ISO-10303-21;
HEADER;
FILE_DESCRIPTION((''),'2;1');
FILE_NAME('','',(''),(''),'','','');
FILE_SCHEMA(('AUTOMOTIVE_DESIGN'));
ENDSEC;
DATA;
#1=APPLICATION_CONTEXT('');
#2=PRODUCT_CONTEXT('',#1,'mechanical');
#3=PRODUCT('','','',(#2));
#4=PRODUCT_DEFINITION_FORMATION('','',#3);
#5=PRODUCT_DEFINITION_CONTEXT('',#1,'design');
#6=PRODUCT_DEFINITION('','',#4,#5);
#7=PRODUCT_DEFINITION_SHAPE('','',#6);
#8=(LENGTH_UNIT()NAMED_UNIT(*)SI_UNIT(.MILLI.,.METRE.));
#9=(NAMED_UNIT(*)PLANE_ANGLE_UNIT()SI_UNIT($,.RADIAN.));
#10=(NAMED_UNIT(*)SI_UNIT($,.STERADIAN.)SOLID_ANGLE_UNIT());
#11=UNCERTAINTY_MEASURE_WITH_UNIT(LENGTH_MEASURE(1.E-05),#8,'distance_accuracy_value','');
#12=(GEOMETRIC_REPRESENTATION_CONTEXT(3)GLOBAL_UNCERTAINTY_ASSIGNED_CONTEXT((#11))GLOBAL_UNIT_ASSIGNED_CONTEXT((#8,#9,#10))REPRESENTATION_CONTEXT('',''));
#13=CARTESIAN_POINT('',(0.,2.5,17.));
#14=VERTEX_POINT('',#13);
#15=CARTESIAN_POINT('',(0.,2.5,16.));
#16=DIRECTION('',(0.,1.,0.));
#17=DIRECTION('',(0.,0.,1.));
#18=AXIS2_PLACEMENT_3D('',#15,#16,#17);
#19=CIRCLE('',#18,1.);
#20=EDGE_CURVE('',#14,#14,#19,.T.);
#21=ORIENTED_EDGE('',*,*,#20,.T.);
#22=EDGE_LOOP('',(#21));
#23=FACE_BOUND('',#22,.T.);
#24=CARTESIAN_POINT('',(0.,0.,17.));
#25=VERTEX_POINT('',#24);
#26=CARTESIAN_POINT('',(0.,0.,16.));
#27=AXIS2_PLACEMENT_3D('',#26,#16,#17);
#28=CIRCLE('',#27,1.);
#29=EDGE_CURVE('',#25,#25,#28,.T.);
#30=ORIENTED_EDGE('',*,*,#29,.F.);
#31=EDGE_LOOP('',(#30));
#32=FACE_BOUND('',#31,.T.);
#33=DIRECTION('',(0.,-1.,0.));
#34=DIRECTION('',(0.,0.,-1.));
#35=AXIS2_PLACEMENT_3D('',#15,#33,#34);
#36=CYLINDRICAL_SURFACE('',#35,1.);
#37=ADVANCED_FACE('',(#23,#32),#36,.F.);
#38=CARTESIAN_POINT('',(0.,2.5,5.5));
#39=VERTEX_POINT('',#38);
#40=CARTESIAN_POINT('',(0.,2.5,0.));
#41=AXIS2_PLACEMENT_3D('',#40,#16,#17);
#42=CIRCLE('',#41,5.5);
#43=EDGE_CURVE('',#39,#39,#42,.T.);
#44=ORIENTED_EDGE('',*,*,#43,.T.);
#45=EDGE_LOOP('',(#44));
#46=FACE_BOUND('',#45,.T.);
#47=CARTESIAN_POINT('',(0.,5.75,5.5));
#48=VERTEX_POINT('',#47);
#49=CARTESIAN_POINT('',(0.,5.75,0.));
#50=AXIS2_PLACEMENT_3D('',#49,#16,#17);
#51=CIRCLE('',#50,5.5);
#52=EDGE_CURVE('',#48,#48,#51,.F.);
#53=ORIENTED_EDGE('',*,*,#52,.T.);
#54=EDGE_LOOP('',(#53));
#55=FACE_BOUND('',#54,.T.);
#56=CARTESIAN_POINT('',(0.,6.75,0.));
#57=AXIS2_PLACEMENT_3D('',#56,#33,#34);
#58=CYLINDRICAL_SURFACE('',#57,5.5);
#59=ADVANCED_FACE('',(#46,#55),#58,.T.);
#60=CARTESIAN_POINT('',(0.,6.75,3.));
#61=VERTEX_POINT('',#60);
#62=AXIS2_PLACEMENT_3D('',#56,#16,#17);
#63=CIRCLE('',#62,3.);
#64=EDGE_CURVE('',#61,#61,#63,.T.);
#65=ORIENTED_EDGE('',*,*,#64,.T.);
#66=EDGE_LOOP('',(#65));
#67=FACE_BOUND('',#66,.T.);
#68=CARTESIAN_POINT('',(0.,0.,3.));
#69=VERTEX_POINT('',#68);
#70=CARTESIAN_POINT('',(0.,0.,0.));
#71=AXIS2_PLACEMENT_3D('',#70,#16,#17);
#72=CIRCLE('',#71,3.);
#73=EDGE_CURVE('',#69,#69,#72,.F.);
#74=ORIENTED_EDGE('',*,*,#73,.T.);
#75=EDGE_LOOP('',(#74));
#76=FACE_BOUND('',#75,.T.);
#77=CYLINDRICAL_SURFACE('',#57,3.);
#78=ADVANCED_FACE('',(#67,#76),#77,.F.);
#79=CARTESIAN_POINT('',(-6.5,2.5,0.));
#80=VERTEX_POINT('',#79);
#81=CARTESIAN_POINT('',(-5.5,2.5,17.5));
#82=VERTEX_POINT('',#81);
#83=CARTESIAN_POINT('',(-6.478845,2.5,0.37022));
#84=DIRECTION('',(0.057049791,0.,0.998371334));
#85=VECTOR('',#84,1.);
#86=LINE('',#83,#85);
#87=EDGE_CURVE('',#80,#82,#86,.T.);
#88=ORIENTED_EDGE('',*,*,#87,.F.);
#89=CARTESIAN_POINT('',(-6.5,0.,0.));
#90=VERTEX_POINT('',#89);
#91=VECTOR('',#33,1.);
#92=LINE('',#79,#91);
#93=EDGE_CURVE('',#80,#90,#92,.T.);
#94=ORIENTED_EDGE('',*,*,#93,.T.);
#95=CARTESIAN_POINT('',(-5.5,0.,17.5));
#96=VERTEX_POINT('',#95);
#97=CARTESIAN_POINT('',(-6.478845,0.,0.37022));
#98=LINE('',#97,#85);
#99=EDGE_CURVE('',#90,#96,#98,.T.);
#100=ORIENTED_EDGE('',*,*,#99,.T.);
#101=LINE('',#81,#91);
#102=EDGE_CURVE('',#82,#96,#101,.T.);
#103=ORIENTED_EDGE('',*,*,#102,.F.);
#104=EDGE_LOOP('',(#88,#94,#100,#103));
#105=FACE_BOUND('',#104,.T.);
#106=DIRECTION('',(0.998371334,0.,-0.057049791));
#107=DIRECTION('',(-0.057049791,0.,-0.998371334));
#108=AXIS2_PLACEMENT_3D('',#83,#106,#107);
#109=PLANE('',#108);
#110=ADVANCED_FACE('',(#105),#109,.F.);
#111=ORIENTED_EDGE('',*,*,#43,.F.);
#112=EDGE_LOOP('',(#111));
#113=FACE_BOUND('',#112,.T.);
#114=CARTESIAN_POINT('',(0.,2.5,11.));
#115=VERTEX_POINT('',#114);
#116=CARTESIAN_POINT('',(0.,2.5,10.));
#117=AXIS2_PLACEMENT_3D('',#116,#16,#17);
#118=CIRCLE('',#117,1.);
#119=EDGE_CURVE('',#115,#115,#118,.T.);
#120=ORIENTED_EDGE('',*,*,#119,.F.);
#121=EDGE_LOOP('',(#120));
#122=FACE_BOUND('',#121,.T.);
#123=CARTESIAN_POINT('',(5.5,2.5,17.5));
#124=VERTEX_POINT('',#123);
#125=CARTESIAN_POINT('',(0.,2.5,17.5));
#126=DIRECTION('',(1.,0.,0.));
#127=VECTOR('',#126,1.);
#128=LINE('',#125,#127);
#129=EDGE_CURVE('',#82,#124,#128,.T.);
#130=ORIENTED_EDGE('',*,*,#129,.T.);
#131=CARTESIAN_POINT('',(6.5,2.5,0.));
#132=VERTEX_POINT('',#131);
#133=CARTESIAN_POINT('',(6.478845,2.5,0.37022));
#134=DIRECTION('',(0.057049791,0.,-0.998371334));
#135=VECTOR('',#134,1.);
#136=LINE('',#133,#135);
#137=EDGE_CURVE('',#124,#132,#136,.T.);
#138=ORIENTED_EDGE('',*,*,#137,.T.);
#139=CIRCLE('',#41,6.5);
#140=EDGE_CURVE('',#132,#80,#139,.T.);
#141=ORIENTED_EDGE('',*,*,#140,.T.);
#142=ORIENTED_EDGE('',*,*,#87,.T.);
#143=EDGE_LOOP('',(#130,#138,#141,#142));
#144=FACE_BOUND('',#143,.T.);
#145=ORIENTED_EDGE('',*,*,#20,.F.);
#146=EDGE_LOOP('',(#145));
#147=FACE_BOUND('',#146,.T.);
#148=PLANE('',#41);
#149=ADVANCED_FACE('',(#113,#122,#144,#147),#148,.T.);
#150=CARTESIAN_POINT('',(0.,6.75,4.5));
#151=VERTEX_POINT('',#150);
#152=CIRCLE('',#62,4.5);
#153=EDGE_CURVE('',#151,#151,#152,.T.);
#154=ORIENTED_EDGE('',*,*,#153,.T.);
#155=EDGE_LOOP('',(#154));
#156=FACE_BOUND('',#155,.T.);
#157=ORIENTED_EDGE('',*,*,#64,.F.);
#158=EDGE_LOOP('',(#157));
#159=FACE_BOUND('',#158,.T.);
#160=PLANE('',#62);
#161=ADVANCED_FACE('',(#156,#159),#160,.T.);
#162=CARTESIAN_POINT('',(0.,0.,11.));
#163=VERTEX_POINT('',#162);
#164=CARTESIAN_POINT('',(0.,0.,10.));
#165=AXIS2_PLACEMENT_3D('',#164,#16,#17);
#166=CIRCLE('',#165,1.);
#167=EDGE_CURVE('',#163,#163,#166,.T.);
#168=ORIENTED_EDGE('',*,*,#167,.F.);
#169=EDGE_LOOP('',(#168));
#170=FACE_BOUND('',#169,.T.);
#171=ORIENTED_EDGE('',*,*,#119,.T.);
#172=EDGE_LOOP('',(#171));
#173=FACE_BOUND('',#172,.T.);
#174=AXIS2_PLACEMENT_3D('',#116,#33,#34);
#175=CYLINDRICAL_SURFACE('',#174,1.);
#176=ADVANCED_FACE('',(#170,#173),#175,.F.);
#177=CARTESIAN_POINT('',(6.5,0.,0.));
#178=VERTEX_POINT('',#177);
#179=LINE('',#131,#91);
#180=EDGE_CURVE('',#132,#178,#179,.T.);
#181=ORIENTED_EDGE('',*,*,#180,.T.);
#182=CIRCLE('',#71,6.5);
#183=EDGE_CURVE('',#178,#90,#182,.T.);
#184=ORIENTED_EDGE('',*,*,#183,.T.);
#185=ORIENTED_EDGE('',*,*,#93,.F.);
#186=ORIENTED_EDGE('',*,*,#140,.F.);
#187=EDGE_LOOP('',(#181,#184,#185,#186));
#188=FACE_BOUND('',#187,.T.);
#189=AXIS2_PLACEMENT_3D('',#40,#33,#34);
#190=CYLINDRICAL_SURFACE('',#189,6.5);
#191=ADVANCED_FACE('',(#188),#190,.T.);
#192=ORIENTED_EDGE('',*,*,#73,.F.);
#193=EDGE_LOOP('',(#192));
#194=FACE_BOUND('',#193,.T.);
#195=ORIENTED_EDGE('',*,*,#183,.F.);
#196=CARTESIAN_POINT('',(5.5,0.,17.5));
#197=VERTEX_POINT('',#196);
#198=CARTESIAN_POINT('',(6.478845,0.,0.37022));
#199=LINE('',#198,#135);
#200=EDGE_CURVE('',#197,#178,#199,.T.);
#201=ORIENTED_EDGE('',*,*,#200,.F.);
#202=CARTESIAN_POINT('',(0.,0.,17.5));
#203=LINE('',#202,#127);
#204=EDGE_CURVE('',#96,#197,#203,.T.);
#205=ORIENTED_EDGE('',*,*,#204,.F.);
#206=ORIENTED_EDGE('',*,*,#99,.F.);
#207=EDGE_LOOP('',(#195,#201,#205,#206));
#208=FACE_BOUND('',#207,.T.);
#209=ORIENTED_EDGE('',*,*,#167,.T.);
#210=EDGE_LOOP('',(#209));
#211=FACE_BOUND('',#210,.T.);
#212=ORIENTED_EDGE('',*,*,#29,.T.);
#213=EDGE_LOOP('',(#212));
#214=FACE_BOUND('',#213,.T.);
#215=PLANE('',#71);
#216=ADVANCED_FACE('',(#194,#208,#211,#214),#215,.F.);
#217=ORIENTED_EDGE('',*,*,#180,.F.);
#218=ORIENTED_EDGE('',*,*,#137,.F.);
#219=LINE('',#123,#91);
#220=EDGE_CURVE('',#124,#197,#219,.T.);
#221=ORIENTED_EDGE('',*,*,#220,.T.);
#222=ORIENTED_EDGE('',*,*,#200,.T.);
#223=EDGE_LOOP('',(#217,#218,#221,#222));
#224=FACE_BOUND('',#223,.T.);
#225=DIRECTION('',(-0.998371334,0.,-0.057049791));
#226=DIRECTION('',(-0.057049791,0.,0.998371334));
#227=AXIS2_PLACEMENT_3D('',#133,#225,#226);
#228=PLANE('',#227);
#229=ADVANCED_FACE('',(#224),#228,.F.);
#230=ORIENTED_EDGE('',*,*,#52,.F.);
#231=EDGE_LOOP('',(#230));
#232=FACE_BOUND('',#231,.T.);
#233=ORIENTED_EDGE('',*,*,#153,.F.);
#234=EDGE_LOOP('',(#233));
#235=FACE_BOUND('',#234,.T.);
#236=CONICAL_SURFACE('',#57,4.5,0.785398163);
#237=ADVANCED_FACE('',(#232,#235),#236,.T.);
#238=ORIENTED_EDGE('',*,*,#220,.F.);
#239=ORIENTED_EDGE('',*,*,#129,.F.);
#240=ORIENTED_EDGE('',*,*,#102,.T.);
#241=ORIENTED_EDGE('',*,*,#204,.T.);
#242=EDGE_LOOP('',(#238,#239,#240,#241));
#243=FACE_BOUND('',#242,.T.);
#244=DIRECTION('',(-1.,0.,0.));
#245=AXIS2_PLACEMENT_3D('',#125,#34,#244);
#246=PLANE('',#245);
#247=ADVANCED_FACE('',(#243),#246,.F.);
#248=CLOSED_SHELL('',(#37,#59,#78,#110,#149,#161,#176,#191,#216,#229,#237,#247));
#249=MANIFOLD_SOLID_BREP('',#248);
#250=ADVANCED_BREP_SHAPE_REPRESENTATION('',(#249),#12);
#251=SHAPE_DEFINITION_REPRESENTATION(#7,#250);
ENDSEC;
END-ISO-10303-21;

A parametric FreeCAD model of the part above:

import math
import FreeCAD as App
import Part
import Sketcher
from FreeCAD import Vector
Q = App.Units.Quantity


def edges_at(feature, points):
    """Names of the edges that pass closest to the given points."""
    edges = feature.Shape.Edges
    near = lambda p: min(range(len(edges)), key=lambda i: edges[i].distToShape(Part.Vertex(*p))[0])
    return sorted({f"Edge{near(p) + 1}" for p in points})

doc = App.newDocument("Part")
body = doc.addObject("PartDesign::Body", "Body")

# Sketch on XZ plane
sketch1 = doc.addObject("Sketcher::SketchObject", "Sketch")
body.addObject(sketch1)
sketch1.AttachmentSupport = (doc.XZ_Plane, [""])
sketch1.MapMode = "FlatFace"
sketch1.addGeometry(Part.ArcOfCircle(Part.Circle(Vector(0, 0, 0), Vector(0, 0, 1), 6.5), math.radians(180), math.radians(360)), False)
sketch1.addGeometry(Part.LineSegment(Vector(-6.5, 0, 0), Vector(-6.457689, 0.740439, 0)), False)
sketch1.addGeometry(Part.LineSegment(Vector(-6.457689, 0.740439, 0), Vector(-5.5, 17.5, 0)), False)
sketch1.addGeometry(Part.LineSegment(Vector(-5.5, 17.5, 0), Vector(5.5, 17.5, 0)), False)
sketch1.addGeometry(Part.LineSegment(Vector(5.5, 17.5, 0), Vector(6.457689, 0.740439, 0)), False)
sketch1.addGeometry(Part.LineSegment(Vector(6.457689, 0.740439, 0), Vector(6.5, 0, 0)), False)
sketch1.addGeometry(Part.Circle(Vector(0, 16, 0), Vector(0, 0, 1), 1), False)
sketch1.addGeometry(Part.Circle(Vector(0, 10, 0), Vector(0, 0, 1), 1), False)
sketch1.addConstraint(Sketcher.Constraint("Coincident", 0, 1, 1, 1))
sketch1.addConstraint(Sketcher.Constraint("Coincident", 1, 2, 2, 1))
sketch1.addConstraint(Sketcher.Constraint("Coincident", 2, 2, 3, 1))
sketch1.addConstraint(Sketcher.Constraint("Coincident", 3, 2, 4, 1))
sketch1.addConstraint(Sketcher.Constraint("Coincident", 4, 2, 5, 1))
sketch1.addConstraint(Sketcher.Constraint("Coincident", 5, 2, 0, 2))
sketch1.addConstraint(Sketcher.Constraint("Horizontal", 3))
sketch1.addConstraint(Sketcher.Constraint("Coincident", 0, 3, -1, 1))
sketch1.addConstraint(Sketcher.Constraint("Equal", 6, 7))
sketch1.addConstraint(Sketcher.Constraint("Symmetric", 1, 2, 4, 2, -2))
sketch1.addConstraint(Sketcher.Constraint("PointOnObject", 6, 3, -2))
sketch1.addConstraint(Sketcher.Constraint("PointOnObject", 7, 3, -2))
sketch1.addConstraint(Sketcher.Constraint("PointOnObject", 0, 1, -1))
sketch1.addConstraint(Sketcher.Constraint("PointOnObject", 5, 2, -1))
sketch1.addConstraint(Sketcher.Constraint("Parallel", 1, 2))
sketch1.addConstraint(Sketcher.Constraint("Parallel", 4, 5))
sketch1.addConstraint(Sketcher.Constraint("Diameter", 6, Q("2 mm")))
sketch1.addConstraint(Sketcher.Constraint("Radius", 0, Q("6.5 mm")))
sketch1.addConstraint(Sketcher.Constraint("DistanceX", 3, 1, 3, 2, Q("11 mm")))
sketch1.addConstraint(Sketcher.Constraint("DistanceY", -1, 1, 6, 3, Q("16 mm")))
sketch1.addConstraint(Sketcher.Constraint("DistanceY", -1, 1, 7, 3, Q("10 mm")))
sketch1.addConstraint(Sketcher.Constraint("DistanceY", -1, 1, 2, 2, Q("17.5 mm")))
sketch1.addConstraint(Sketcher.Constraint("Distance", 2, Q("16.786901 mm")))
pad1 = doc.addObject("PartDesign::Pad", "Pad")
body.addObject(pad1)
pad1.Profile = sketch1
pad1.Length = 2.5
pad1.Reversed = True

# Sketch on XZ plane
sketch2 = doc.addObject("Sketcher::SketchObject", "Sketch001")
body.addObject(sketch2)
sketch2.AttachmentSupport = (doc.XZ_Plane, [""])
sketch2.MapMode = "FlatFace"
sketch2.AttachmentOffset = App.Placement(Vector(0, 0, -2.5), App.Rotation())
sketch2.addGeometry(Part.Circle(Vector(0, 0, 0), Vector(0, 0, 1), 5.5), False)
sketch2.addGeometry(Part.Circle(Vector(0, 0, 0), Vector(0, 0, 1), 3), False)
sketch2.addConstraint(Sketcher.Constraint("Coincident", 0, 3, -1, 1))
sketch2.addConstraint(Sketcher.Constraint("Coincident", 1, 3, -1, 1))
sketch2.addConstraint(Sketcher.Constraint("Diameter", 0, Q("11 mm")))
sketch2.addConstraint(Sketcher.Constraint("Diameter", 1, Q("6 mm")))
pad2 = doc.addObject("PartDesign::Pad", "Pad001")
body.addObject(pad2)
pad2.Profile = sketch2
pad2.Length = 4.25
pad2.Reversed = True

# Sketch on XZ plane
sketch3 = doc.addObject("Sketcher::SketchObject", "Sketch002")
body.addObject(sketch3)
sketch3.AttachmentSupport = (doc.XZ_Plane, [""])
sketch3.MapMode = "FlatFace"
sketch3.AttachmentOffset = App.Placement(Vector(0, 0, -2.5), App.Rotation())
sketch3.addGeometry(Part.Circle(Vector(0, 0, 0), Vector(0, 0, 1), 3), False)
sketch3.addConstraint(Sketcher.Constraint("Coincident", 0, 3, -1, 1))
sketch3.addConstraint(Sketcher.Constraint("Diameter", 0, Q("6 mm")))
pocket1 = doc.addObject("PartDesign::Pocket", "Pocket")
body.addObject(pocket1)
pocket1.Profile = sketch3
pocket1.Type = "UpToFirst"
pocket1.Reversed = True
doc.recompute()

chamfer = doc.addObject("PartDesign::Chamfer", "Chamfer")
body.addObject(chamfer)
chamfer.Base = (pocket1, edges_at(pocket1, [(-5.5, 6.75, 0)]))
chamfer.Size = 1

doc.recompute()
